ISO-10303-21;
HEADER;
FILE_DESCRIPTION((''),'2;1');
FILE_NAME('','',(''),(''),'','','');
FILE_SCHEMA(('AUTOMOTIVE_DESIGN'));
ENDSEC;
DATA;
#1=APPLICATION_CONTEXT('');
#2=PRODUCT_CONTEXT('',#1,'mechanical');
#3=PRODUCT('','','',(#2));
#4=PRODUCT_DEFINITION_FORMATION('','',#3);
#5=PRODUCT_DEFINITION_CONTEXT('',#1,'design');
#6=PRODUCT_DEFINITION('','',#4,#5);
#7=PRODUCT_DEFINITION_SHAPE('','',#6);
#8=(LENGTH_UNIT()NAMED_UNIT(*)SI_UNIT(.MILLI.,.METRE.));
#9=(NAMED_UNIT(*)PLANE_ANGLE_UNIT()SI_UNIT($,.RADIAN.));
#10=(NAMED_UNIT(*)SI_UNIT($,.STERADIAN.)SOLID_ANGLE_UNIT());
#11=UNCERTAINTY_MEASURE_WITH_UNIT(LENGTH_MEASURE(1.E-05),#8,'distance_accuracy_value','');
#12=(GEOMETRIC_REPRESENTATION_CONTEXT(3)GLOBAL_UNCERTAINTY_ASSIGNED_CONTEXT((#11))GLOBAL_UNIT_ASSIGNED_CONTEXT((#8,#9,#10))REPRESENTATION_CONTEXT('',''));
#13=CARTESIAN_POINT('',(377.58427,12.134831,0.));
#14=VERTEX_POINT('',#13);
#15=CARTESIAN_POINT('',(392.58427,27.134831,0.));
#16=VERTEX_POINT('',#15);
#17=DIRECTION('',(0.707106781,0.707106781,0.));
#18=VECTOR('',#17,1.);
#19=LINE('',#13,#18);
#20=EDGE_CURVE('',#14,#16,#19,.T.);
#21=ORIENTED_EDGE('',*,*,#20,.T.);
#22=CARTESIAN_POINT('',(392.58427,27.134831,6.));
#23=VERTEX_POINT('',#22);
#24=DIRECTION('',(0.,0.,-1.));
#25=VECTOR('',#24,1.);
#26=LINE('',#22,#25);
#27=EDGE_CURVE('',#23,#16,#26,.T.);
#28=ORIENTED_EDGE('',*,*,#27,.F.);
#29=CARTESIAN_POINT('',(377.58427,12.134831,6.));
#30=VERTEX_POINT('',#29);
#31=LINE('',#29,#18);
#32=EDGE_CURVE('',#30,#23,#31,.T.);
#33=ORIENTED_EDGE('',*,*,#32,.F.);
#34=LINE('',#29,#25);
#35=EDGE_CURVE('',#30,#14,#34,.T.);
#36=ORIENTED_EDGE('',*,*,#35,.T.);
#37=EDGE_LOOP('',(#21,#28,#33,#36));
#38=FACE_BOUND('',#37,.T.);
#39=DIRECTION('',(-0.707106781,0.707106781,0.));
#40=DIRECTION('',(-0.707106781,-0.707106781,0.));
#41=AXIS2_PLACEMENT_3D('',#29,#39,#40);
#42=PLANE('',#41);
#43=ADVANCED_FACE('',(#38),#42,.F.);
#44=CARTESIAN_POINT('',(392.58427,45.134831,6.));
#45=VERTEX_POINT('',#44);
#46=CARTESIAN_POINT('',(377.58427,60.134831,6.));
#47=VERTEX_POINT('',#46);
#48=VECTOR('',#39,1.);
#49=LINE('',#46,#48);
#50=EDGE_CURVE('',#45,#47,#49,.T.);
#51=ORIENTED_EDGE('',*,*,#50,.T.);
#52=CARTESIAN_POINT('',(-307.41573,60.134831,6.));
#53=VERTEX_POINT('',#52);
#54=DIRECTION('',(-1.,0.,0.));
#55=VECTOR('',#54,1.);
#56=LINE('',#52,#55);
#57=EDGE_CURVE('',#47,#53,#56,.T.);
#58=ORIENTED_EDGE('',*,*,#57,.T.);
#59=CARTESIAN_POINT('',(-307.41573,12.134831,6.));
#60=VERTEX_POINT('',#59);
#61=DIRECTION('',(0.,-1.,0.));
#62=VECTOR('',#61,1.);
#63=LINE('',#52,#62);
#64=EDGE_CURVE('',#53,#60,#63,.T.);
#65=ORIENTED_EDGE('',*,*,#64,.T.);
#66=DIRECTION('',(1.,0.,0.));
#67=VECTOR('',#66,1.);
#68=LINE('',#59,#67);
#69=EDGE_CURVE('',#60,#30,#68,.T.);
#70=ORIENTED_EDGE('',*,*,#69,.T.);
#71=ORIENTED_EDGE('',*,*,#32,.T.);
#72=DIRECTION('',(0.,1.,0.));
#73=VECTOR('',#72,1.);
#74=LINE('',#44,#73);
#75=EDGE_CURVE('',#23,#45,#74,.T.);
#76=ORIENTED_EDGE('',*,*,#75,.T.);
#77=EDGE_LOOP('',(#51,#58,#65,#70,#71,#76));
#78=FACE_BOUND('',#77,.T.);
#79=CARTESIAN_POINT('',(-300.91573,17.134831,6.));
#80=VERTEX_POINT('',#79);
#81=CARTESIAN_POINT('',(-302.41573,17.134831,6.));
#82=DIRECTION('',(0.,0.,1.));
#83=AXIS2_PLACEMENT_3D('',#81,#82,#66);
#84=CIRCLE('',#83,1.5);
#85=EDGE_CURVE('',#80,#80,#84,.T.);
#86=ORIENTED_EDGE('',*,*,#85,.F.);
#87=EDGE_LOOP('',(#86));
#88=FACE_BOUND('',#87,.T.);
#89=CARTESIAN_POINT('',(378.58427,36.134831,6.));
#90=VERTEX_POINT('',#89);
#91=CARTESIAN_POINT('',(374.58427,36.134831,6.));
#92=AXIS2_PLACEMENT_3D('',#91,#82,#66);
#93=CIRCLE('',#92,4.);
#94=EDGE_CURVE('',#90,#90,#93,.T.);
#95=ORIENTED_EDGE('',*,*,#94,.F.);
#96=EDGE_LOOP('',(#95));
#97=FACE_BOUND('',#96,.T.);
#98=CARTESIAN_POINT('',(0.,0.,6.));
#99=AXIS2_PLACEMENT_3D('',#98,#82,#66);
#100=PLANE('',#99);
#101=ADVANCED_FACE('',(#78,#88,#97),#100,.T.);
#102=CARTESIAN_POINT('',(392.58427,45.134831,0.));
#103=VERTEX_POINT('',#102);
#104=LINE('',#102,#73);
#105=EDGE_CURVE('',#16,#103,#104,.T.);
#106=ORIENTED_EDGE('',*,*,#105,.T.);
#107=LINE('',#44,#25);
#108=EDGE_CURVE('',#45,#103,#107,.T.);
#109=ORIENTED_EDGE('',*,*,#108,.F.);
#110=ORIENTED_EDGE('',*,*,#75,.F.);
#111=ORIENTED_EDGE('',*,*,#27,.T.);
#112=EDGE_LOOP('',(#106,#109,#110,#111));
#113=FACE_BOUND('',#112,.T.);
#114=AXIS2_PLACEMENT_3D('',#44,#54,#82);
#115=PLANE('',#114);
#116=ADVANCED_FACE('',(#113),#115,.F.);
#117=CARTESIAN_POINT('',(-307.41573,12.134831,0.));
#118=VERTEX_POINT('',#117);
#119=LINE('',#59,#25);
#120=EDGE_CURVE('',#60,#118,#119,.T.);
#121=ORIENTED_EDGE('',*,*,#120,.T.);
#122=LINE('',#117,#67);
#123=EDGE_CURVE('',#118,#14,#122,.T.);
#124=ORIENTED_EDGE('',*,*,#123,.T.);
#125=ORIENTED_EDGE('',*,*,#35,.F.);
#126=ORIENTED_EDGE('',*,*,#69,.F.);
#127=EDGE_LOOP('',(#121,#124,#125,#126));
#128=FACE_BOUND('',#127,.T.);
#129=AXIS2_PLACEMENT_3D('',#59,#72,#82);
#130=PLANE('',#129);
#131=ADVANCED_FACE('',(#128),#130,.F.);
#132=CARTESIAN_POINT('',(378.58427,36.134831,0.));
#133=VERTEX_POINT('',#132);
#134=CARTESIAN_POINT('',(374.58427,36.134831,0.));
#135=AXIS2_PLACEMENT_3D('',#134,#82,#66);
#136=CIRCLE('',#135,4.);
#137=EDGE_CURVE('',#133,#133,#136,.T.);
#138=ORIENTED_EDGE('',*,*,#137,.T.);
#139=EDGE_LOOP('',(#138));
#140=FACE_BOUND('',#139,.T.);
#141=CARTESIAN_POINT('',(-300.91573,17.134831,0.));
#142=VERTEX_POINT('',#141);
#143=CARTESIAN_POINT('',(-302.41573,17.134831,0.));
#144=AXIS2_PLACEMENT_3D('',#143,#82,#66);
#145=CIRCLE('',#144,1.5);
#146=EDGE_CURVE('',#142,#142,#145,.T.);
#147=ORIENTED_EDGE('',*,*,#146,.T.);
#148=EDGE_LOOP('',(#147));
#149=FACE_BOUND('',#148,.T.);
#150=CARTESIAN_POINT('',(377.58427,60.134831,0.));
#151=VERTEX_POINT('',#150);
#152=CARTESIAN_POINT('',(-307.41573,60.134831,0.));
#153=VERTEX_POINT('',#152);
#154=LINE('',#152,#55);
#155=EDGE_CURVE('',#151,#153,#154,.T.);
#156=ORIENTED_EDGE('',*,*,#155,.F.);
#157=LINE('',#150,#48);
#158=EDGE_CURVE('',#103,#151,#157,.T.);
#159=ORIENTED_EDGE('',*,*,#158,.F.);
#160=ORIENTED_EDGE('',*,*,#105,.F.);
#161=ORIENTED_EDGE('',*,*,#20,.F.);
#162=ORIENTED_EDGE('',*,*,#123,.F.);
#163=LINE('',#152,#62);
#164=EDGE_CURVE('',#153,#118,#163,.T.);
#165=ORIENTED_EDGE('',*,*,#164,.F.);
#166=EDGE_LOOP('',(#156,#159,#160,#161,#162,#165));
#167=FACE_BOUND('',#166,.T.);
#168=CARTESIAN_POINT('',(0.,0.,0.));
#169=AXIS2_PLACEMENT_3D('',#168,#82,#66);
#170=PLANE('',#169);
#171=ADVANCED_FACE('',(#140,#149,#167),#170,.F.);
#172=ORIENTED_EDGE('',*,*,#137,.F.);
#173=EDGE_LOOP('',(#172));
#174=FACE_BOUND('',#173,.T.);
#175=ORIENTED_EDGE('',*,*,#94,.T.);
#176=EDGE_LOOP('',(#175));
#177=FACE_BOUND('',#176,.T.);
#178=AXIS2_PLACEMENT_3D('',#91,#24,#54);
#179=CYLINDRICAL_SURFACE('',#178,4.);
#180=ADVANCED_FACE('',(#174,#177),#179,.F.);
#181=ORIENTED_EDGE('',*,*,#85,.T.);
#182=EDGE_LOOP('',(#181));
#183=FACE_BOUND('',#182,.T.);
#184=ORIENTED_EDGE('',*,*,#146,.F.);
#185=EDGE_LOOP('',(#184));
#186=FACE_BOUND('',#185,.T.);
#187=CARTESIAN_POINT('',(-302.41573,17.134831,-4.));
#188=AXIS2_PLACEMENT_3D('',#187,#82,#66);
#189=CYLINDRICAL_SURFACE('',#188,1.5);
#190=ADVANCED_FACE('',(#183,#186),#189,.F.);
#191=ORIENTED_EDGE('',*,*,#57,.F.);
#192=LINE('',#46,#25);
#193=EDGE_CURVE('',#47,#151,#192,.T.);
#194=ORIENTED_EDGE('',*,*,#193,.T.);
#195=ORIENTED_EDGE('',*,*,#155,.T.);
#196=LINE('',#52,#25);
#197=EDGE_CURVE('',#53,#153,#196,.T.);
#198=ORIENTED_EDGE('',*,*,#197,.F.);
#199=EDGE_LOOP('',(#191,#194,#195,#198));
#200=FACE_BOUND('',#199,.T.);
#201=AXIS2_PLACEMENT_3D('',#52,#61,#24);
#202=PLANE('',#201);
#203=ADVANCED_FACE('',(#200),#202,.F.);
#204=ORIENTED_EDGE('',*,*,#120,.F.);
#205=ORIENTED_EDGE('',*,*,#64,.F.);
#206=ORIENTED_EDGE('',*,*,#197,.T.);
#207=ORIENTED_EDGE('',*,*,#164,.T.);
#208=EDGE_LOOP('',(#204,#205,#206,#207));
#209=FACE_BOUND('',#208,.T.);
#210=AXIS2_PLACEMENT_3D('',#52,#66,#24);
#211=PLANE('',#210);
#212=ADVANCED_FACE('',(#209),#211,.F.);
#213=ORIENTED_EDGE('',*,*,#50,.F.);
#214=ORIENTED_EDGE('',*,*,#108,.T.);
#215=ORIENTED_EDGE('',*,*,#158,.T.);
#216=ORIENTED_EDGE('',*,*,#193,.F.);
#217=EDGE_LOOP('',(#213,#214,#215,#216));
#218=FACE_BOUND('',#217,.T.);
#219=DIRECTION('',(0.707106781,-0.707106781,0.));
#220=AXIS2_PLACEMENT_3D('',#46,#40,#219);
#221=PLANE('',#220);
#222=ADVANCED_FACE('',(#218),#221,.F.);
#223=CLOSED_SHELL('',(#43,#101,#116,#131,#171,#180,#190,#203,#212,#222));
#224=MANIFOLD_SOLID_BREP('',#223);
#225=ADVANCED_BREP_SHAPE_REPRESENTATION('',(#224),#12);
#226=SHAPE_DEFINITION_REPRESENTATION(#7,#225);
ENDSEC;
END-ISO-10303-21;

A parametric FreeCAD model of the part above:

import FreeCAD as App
import Part
import Sketcher
from FreeCAD import Vector


def add_polygon(sketch, points):
    """Adds a closed chain of lines whose ends are joined by coincident constraints."""
    first, n = sketch.GeometryCount, len(points)
    for a, b in zip(points, points[1:] + points[:1]):
        sketch.addGeometry(Part.LineSegment(App.Vector(*a, 0), App.Vector(*b, 0)), False)
    for i in range(n):
        sketch.addConstraint(Sketcher.Constraint("Coincident", first + i, 2, first + (i + 1) % n, 1))

doc = App.newDocument("Part")
body = doc.addObject("PartDesign::Body", "Body")

sketch1 = body.newObject("Sketcher::SketchObject", "Sketch")
sketch1.AttachmentSupport = (doc.getObject("XY_Plane"), [""])
sketch1.MapMode = "FlatFace"
add_polygon(sketch1, [(392.58427, 45.134831), (377.58427, 60.134831), (-307.41573, 60.134831), (-307.41573, 12.134831), (377.58427, 12.134831), (392.58427, 27.134831)])
sketch1.addGeometry(Part.Circle(Vector(374.58427, 36.134831, 0), Vector(0, 0, 1), 4), False)
sketch1.addConstraint(Sketcher.Constraint("Horizontal", 1))
sketch1.addConstraint(Sketcher.Constraint("Vertical", 2))
sketch1.addConstraint(Sketcher.Constraint("Horizontal", 3))
sketch1.addConstraint(Sketcher.Constraint("Vertical", 5))
sketch1.addConstraint(Sketcher.Constraint("Perpendicular", 0, 4))
sketch1.addConstraint(Sketcher.Constraint("Vertical", 0, 2, 3, 2))
sketch1.addConstraint(Sketcher.Constraint("Equal", 0, 4))
sketch1.addConstraint(Sketcher.Constraint("Diameter", 6, 8.0))
sketch1.addConstraint(Sketcher.Constraint("DistanceX", 1, 2, 1, 1, 685.0))
sketch1.addConstraint(Sketcher.Constraint("DistanceY", 2, 2, 2, 1, 48.0))
sketch1.addConstraint(Sketcher.Constraint("DistanceY", 5, 1, 5, 2, 18.0))
sketch1.addConstraint(Sketcher.Constraint("DistanceX", 6, 3, 0, 2, 3.0))
sketch1.addConstraint(Sketcher.Constraint("DistanceY", 6, 3, 0, 2, 24.0))
sketch1.addConstraint(Sketcher.Constraint("DistanceX", -1, 1, 6, 3, 374.58427))
sketch1.addConstraint(Sketcher.Constraint("DistanceY", -1, 1, 6, 3, 36.134831))
pad1 = body.newObject("PartDesign::Pad", "Pad")
pad1.Profile = sketch1
pad1.Length = 6

sketch2 = body.newObject("Sketcher::SketchObject", "Sketch001")
sketch2.AttachmentSupport = (doc.getObject("XY_Plane"), [""])
sketch2.MapMode = "FlatFace"
sketch2.AttachmentOffset = App.Placement(Vector(0, 0, 6), App.Rotation())
sketch2.addGeometry(Part.Circle(Vector(-302.41573, 17.134831, 0), Vector(0, 0, 1), 1.5), False)
sketch2.addConstraint(Sketcher.Constraint("Diameter", 0, 3.0))
sketch2.addConstraint(Sketcher.Constraint("DistanceX", 0, 3, -1, 1, 302.41573))
sketch2.addConstraint(Sketcher.Constraint("DistanceY", -1, 1, 0, 3, 17.134831))
pocket1 = body.newObject("PartDesign::Pocket", "Pocket")
pocket1.Profile = sketch2
pocket1.Length = 10

doc.recompute()
